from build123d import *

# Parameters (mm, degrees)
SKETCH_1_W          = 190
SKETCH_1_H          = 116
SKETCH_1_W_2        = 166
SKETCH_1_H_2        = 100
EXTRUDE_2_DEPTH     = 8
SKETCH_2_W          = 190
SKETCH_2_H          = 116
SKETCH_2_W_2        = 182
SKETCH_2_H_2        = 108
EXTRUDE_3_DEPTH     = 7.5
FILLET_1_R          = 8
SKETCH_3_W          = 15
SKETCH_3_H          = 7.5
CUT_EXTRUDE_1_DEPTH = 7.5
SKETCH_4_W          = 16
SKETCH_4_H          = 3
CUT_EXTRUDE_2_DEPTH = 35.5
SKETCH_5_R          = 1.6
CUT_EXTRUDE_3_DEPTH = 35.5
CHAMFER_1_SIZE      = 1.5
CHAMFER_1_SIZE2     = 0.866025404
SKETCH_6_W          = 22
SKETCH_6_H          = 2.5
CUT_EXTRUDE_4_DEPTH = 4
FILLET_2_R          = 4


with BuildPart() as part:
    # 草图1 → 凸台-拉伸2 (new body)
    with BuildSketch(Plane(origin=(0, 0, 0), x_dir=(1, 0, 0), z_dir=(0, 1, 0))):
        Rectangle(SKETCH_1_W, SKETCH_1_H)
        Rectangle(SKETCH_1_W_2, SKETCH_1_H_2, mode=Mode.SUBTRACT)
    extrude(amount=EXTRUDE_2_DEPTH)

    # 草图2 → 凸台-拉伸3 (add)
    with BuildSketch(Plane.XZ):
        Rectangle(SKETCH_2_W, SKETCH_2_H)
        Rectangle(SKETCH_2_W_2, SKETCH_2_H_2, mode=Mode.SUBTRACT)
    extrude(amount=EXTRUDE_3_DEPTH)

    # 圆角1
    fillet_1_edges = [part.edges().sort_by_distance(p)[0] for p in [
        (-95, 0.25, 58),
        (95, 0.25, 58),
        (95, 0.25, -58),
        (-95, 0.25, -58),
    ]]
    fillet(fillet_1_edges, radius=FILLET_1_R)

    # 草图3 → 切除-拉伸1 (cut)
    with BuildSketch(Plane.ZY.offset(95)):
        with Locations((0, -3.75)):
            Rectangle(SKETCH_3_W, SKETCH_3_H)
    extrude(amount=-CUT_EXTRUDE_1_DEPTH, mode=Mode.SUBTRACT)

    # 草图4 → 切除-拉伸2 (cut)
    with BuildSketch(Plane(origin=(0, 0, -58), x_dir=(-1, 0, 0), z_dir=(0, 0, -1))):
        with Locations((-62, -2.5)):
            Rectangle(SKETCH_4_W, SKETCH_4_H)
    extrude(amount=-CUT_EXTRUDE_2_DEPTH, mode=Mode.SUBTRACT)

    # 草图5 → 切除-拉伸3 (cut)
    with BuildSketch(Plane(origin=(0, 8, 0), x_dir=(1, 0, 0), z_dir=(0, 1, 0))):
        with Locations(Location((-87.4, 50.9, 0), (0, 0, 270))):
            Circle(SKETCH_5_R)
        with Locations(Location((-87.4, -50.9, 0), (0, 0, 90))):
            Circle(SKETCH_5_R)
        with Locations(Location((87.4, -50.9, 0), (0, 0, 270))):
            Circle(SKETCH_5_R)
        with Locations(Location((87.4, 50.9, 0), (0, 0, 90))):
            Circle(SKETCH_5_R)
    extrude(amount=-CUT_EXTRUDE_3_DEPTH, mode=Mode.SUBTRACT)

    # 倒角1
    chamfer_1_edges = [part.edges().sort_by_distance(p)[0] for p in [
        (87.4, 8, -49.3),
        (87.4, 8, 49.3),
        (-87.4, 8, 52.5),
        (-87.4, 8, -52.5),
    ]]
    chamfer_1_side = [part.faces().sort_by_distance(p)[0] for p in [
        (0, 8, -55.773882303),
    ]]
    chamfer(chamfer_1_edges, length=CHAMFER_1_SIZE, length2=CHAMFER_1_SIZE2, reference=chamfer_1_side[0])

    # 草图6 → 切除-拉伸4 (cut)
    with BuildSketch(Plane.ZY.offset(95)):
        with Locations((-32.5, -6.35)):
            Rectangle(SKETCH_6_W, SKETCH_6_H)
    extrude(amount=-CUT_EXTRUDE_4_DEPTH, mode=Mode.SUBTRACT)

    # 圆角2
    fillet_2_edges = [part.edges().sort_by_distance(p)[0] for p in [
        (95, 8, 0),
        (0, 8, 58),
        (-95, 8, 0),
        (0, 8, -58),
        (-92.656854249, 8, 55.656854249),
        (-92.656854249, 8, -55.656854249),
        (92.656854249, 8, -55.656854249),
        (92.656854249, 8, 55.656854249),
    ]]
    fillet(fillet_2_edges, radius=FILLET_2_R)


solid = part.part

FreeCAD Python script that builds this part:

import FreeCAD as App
import Part
import Sketcher

V = App.Vector
Q = App.Units.Quantity


def edges_at(feature, points):
    """Names of the edges that pass closest to the given points."""
    edges = feature.Shape.Edges
    near = lambda p: min(range(len(edges)), key=lambda i: edges[i].distToShape(Part.Vertex(*p))[0])
    return sorted({f"Edge{near(p) + 1}" for p in points})

doc = App.newDocument("Part")
params = doc.addObject("Spreadsheet::Sheet", "Params")
for row, (alias, value) in enumerate([
    ("sketch1_width", "190 mm"),
    ("sketch1_width2", "166 mm"),
    ("sketch1_height", "116 mm"),
    ("sketch1_height2", "100 mm"),
    ("pad1_length", "8 mm"),
    ("sketch2_width", "190 mm"),
    ("sketch2_width2", "182 mm"),
    ("sketch2_height", "116 mm"),
    ("sketch2_height2", "108 mm"),
    ("pad2_length", "7.5 mm"),
    ("fillet_radius", "8 mm"),
    ("sketch3_height", "15 mm"),
    ("sketch3_width", "7.5 mm"),
    ("pocket1_length", "7.5 mm"),
    ("sketch4_width", "16 mm"),
    ("sketch4_height", "3 mm"),
    ("pocket2_length", "35.5 mm"),
    ("sketch5_diameter", "3.2 mm"),
    ("pocket3_length", "35.5 mm"),
    ("chamfer_size", "1.5 mm"),
    ("chamfer_size2", "0.866025 mm"),
    ("sketch6_height", "22 mm"),
    ("sketch6_width", "2.5 mm"),
    ("pocket4_length", "4 mm"),
    ("fillet2_radius", "4 mm"),
], start=1):
    params.set(f"A{row}", alias)
    params.set(f"B{row}", "=" + value)
    params.setAlias(f"B{row}", alias)

body = doc.addObject("PartDesign::Body", "Body")

# Sketch on XZ plane
sketch1 = body.newObject("Sketcher::SketchObject", "Sketch")
sketch1.AttachmentSupport = (doc.getObject("XZ_Plane"), [""])
sketch1.MapMode = "FlatFace"
sketch1.addGeometry(Part.LineSegment(V(-95, -58, 0), V(-95, 58, 0)), False)
sketch1.addGeometry(Part.LineSegment(V(-95, 58, 0), V(95, 58, 0)), False)
sketch1.addGeometry(Part.LineSegment(V(95, 58, 0), V(95, -58, 0)), False)
sketch1.addGeometry(Part.LineSegment(V(95, -58, 0), V(-95, -58, 0)), False)
sketch1.addGeometry(Part.LineSegment(V(83, 50, 0), V(-83, 50, 0)), False)
sketch1.addGeometry(Part.LineSegment(V(-83, 50, 0), V(-83, -50, 0)), False)
sketch1.addGeometry(Part.LineSegment(V(-83, -50, 0), V(83, -50, 0)), False)
sketch1.addGeometry(Part.LineSegment(V(83, -50, 0), V(83, 50, 0)), False)
sketch1.addConstraint(Sketcher.Constraint("Coincident", 0, 2, 1, 1))
sketch1.addConstraint(Sketcher.Constraint("Coincident", 1, 2, 2, 1))
sketch1.addConstraint(Sketcher.Constraint("Coincident", 2, 2, 3, 1))
sketch1.addConstraint(Sketcher.Constraint("Coincident", 3, 2, 0, 1))
sketch1.addConstraint(Sketcher.Constraint("Coincident", 4, 2, 5, 1))
sketch1.addConstraint(Sketcher.Constraint("Coincident", 5, 2, 6, 1))
sketch1.addConstraint(Sketcher.Constraint("Coincident", 6, 2, 7, 1))
sketch1.addConstraint(Sketcher.Constraint("Coincident", 7, 2, 4, 1))
sketch1.addConstraint(Sketcher.Constraint("Vertical", 0))
sketch1.addConstraint(Sketcher.Constraint("Horizontal", 1))
sketch1.addConstraint(Sketcher.Constraint("Vertical", 2))
sketch1.addConstraint(Sketcher.Constraint("Horizontal", 3))
sketch1.addConstraint(Sketcher.Constraint("Horizontal", 4))
sketch1.addConstraint(Sketcher.Constraint("Vertical", 5))
sketch1.addConstraint(Sketcher.Constraint("Horizontal", 6))
sketch1.addConstraint(Sketcher.Constraint("Vertical", 7))
sketch1.addConstraint(Sketcher.Constraint("Symmetric", 0, 2, 2, 2, -1, 1))
sketch1.addConstraint(Sketcher.Constraint("Symmetric", 4, 2, 6, 2, -1, 1))
sketch1.addConstraint(Sketcher.Constraint("DistanceX", 1, 1, 1, 2, Q("190 mm")))
sketch1.addConstraint(Sketcher.Constraint("DistanceX", 4, 2, 4, 1, Q("166 mm")))
sketch1.addConstraint(Sketcher.Constraint("DistanceY", 0, 1, 0, 2, Q("116 mm")))
sketch1.addConstraint(Sketcher.Constraint("DistanceY", 5, 2, 5, 1, Q("100 mm")))
sketch1.setExpression("Constraints[18]", "Params.sketch1_width")
sketch1.setExpression("Constraints[19]", "Params.sketch1_width2")
sketch1.setExpression("Constraints[20]", "Params.sketch1_height")
sketch1.setExpression("Constraints[21]", "Params.sketch1_height2")
pad1 = body.newObject("PartDesign::Pad", "Pad")
pad1.Profile = sketch1
pad1.setExpression("Length", "Params.pad1_length")
pad1.Reversed = True

# Sketch on XZ plane
sketch2 = body.newObject("Sketcher::SketchObject", "Sketch001")
sketch2.AttachmentSupport = (doc.getObject("XZ_Plane"), [""])
sketch2.MapMode = "FlatFace"
sketch2.addGeometry(Part.LineSegment(V(-95, 58, 0), V(-95, -58, 0)), False)
sketch2.addGeometry(Part.LineSegment(V(-95, -58, 0), V(95, -58, 0)), False)
sketch2.addGeometry(Part.LineSegment(V(95, -58, 0), V(95, 58, 0)), False)
sketch2.addGeometry(Part.LineSegment(V(95, 58, 0), V(-95, 58, 0)), False)
sketch2.addGeometry(Part.LineSegment(V(91, -54, 0), V(-91, -54, 0)), False)
sketch2.addGeometry(Part.LineSegment(V(-91, -54, 0), V(-91, 54, 0)), False)
sketch2.addGeometry(Part.LineSegment(V(-91, 54, 0), V(91, 54, 0)), False)
sketch2.addGeometry(Part.LineSegment(V(91, 54, 0), V(91, -54, 0)), False)
sketch2.addConstraint(Sketcher.Constraint("Coincident", 0, 2, 1, 1))
sketch2.addConstraint(Sketcher.Constraint("Coincident", 1, 2, 2, 1))
sketch2.addConstraint(Sketcher.Constraint("Coincident", 2, 2, 3, 1))
sketch2.addConstraint(Sketcher.Constraint("Coincident", 3, 2, 0, 1))
sketch2.addConstraint(Sketcher.Constraint("Coincident", 4, 2, 5, 1))
sketch2.addConstraint(Sketcher.Constraint("Coincident", 5, 2, 6, 1))
sketch2.addConstraint(Sketcher.Constraint("Coincident", 6, 2, 7, 1))
sketch2.addConstraint(Sketcher.Constraint("Coincident", 7, 2, 4, 1))
sketch2.addConstraint(Sketcher.Constraint("Vertical", 0))
sketch2.addConstraint(Sketcher.Constraint("Horizontal", 1))
sketch2.addConstraint(Sketcher.Constraint("Vertical", 2))
sketch2.addConstraint(Sketcher.Constraint("Horizontal", 3))
sketch2.addConstraint(Sketcher.Constraint("Horizontal", 4))
sketch2.addConstraint(Sketcher.Constraint("Vertical", 5))
sketch2.addConstraint(Sketcher.Constraint("Horizontal", 6))
sketch2.addConstraint(Sketcher.Constraint("Vertical", 7))
sketch2.addConstraint(Sketcher.Constraint("Symmetric", 0, 2, 2, 2, -1, 1))
sketch2.addConstraint(Sketcher.Constraint("Symmetric", 4, 2, 6, 2, -1, 1))
sketch2.addConstraint(Sketcher.Constraint("DistanceX", 1, 1, 1, 2, Q("190 mm")))
sketch2.addConstraint(Sketcher.Constraint("DistanceX", 4, 2, 4, 1, Q("182 mm")))
sketch2.addConstraint(Sketcher.Constraint("DistanceY", 0, 2, 0, 1, Q("116 mm")))
sketch2.addConstraint(Sketcher.Constraint("DistanceY", 5, 1, 5, 2, Q("108 mm")))
sketch2.setExpression("Constraints[18]", "Params.sketch2_width")
sketch2.setExpression("Constraints[19]", "Params.sketch2_width2")
sketch2.setExpression("Constraints[20]", "Params.sketch2_height")
sketch2.setExpression("Constraints[21]", "Params.sketch2_height2")
pad2 = body.newObject("PartDesign::Pad", "Pad001")
pad2.Profile = sketch2
pad2.setExpression("Length", "Params.pad2_length")
doc.recompute()

fillet = body.newObject("PartDesign::Fillet", "Fillet")
fillet.Base = (pad2, edges_at(pad2, [
    (-95, 0.25, 58),
    (95, 0.25, 58),
    (95, 0.25, -58),
    (-95, 0.25, -58),
]))
fillet.setExpression("Radius", "Params.fillet_radius")

# Sketch on YZ plane
sketch3 = body.newObject("Sketcher::SketchObject", "Sketch002")
sketch3.AttachmentSupport = (doc.getObject("YZ_Plane"), [""])
sketch3.MapMode = "FlatFace"
sketch3.AttachmentOffset = App.Placement(V(0, 0, -95), App.Rotation())
sketch3.addGeometry(Part.LineSegment(V(0, -8, 0), V(-8, -8, 0)), False)
sketch3.addGeometry(Part.LineSegment(V(-8, -8, 0), V(-8, 8, 0)), False)
sketch3.addGeometry(Part.LineSegment(V(-8, 8, 0), V(0, 8, 0)), False)
sketch3.addGeometry(Part.LineSegment(V(0, 8, 0), V(0, -8, 0)), False)
sketch3.addConstraint(Sketcher.Constraint("Coincident", 0, 2, 1, 1))
sketch3.addConstraint(Sketcher.Constraint("Coincident", 1, 2, 2, 1))
sketch3.addConstraint(Sketcher.Constraint("Coincident", 2, 2, 3, 1))
sketch3.addConstraint(Sketcher.Constraint("Coincident", 3, 2, 0, 1))
sketch3.addConstraint(Sketcher.Constraint("Horizontal", 0))
sketch3.addConstraint(Sketcher.Constraint("Vertical", 1))
sketch3.addConstraint(Sketcher.Constraint("Horizontal", 2))
sketch3.addConstraint(Sketcher.Constraint("Vertical", 3))
sketch3.addConstraint(Sketcher.Constraint("Symmetric", 2, 2, 3, 2, -1, 1))
sketch3.addConstraint(Sketcher.Constraint("DistanceY", 1, 1, 1, 2, Q("15 mm")))
sketch3.addConstraint(Sketcher.Constraint("DistanceX", 0, 2, 0, 1, Q("7.5 mm")))
sketch3.setExpression("Constraints[9]", "Params.sketch3_height")
sketch3.setExpression("Constraints[10]", "Params.sketch3_width")
pocket1 = body.newObject("PartDesign::Pocket", "Pocket")
pocket1.Profile = sketch3
pocket1.setExpression("Length", "Params.pocket1_length")
pocket1.Reversed = True

# Sketch on XY plane
sketch4 = body.newObject("Sketcher::SketchObject", "Sketch003")
sketch4.AttachmentSupport = (doc.getObject("XY_Plane"), [""])
sketch4.MapMode = "FlatFace"
sketch4.AttachmentOffset = App.Placement(V(0, 0, -58), App.Rotation())
sketch4.addGeometry(Part.LineSegment(V(70, -1, 0), V(70, -4, 0)), False)
sketch4.addGeometry(Part.LineSegment(V(70, -4, 0), V(54, -4, 0)), False)
sketch4.addGeometry(Part.LineSegment(V(54, -4, 0), V(54, -1, 0)), False)
sketch4.addGeometry(Part.LineSegment(V(54, -1, 0), V(70, -1, 0)), False)
sketch4.addConstraint(Sketcher.Constraint("Coincident", 0, 2, 1, 1))
sketch4.addConstraint(Sketcher.Constraint("Coincident", 1, 2, 2, 1))
sketch4.addConstraint(Sketcher.Constraint("Coincident", 2, 2, 3, 1))
sketch4.addConstraint(Sketcher.Constraint("Coincident", 3, 2, 0, 1))
sketch4.addConstraint(Sketcher.Constraint("Vertical", 0))
sketch4.addConstraint(Sketcher.Constraint("Horizontal", 1))
sketch4.addConstraint(Sketcher.Constraint("Vertical", 2))
sketch4.addConstraint(Sketcher.Constraint("Horizontal", 3))
sketch4.addConstraint(Sketcher.Constraint("DistanceX", 1, 2, 1, 1, Q("16 mm")))
sketch4.addConstraint(Sketcher.Constraint("DistanceY", 0, 2, 0, 1, Q("3 mm")))
sketch4.addConstraint(Sketcher.Constraint("DistanceX", -1, 1, 0, 2, Q("70 mm")))
sketch4.addConstraint(Sketcher.Constraint("DistanceY", 0, 2, -1, 1, Q("4 mm")))
sketch4.setExpression("Constraints[8]", "Params.sketch4_width")
sketch4.setExpression("Constraints[9]", "Params.sketch4_height")
pocket2 = body.newObject("PartDesign::Pocket", "Pocket001")
pocket2.Profile = sketch4
pocket2.setExpression("Length", "Params.pocket2_length")
pocket2.Reversed = True

# Sketch on XZ plane
sketch5 = body.newObject("Sketcher::SketchObject", "Sketch004")
sketch5.AttachmentSupport = (doc.getObject("XZ_Plane"), [""])
sketch5.MapMode = "FlatFace"
sketch5.AttachmentOffset = App.Placement(V(0, 0, -8), App.Rotation())
sketch5.addGeometry(Part.Circle(V(-87.4, -50.9, 0), V(0, 0, 1), 1.6), False)
sketch5.addGeometry(Part.Circle(V(-87.4, 50.9, 0), V(0, 0, 1), 1.6), False)
sketch5.addGeometry(Part.Circle(V(87.4, 50.9, 0), V(0, 0, 1), 1.6), False)
sketch5.addGeometry(Part.Circle(V(87.4, -50.9, 0), V(0, 0, 1), 1.6), False)
sketch5.addConstraint(Sketcher.Constraint("Equal", 0, 1))
sketch5.addConstraint(Sketcher.Constraint("Equal", 1, 2))
sketch5.addConstraint(Sketcher.Constraint("Equal", 2, 3))
sketch5.addConstraint(Sketcher.Constraint("Symmetric", 0, 3, 2, 3, -1, 1))
sketch5.addConstraint(Sketcher.Constraint("Symmetric", 1, 3, 3, 3, -1, 1))
sketch5.addConstraint(Sketcher.Constraint("Symmetric", 1, 3, 2, 3, -2))
sketch5.addConstraint(Sketcher.Constraint("Diameter", 0, Q("3.2 mm")))
sketch5.addConstraint(Sketcher.Constraint("DistanceX", 0, 3, -1, 1, Q("87.4 mm")))
sketch5.addConstraint(Sketcher.Constraint("DistanceY", 0, 3, -1, 1, Q("50.9 mm")))
sketch5.setExpression("Constraints[6]", "Params.sketch5_diameter")
pocket3 = body.newObject("PartDesign::Pocket", "Pocket002")
pocket3.Profile = sketch5
pocket3.setExpression("Length", "Params.pocket3_length")
pocket3.Reversed = True
doc.recompute()

chamfer = body.newObject("PartDesign::Chamfer", "Chamfer")
chamfer.Base = (pocket3, edges_at(pocket3, [
    (87.4, 8, -49.3),
    (87.4, 8, 49.3),
    (-87.4, 8, 52.5),
    (-87.4, 8, -52.5),
]))
chamfer.ChamferType = "Two distances"
chamfer.setExpression("Size", "Params.chamfer_size")
chamfer.setExpression("Size2", "Params.chamfer_size2")

# Sketch on YZ plane
sketch6 = body.newObject("Sketcher::SketchObject", "Sketch005")
sketch6.AttachmentSupport = (doc.getObject("YZ_Plane"), [""])
sketch6.MapMode = "FlatFace"
sketch6.AttachmentOffset = App.Placement(V(0, 0, -95), App.Rotation())
sketch6.addGeometry(Part.LineSegment(V(-5.1, -43.5, 0), V(-7.6, -43.5, 0)), False)
sketch6.addGeometry(Part.LineSegment(V(-7.6, -43.5, 0), V(-7.6, -21.5, 0)), False)
sketch6.addGeometry(Part.LineSegment(V(-7.6, -21.5, 0), V(-5.1, -21.5, 0)), False)
sketch6.addGeometry(Part.LineSegment(V(-5.1, -21.5, 0), V(-5.1, -43.5, 0)), False)
sketch6.addConstraint(Sketcher.Constraint("Coincident", 0, 2, 1, 1))
sketch6.addConstraint(Sketcher.Constraint("Coincident", 1, 2, 2, 1))
sketch6.addConstraint(Sketcher.Constraint("Coincident", 2, 2, 3, 1))
sketch6.addConstraint(Sketcher.Constraint("Coincident", 3, 2, 0, 1))
sketch6.addConstraint(Sketcher.Constraint("Horizontal", 0))
sketch6.addConstraint(Sketcher.Constraint("Vertical", 1))
sketch6.addConstraint(Sketcher.Constraint("Horizontal", 2))
sketch6.addConstraint(Sketcher.Constraint("Vertical", 3))
sketch6.addConstraint(Sketcher.Constraint("DistanceY", 1, 1, 1, 2, Q("22 mm")))
sketch6.addConstraint(Sketcher.Constraint("DistanceX", 0, 2, 0, 1, Q("2.5 mm")))
sketch6.addConstraint(Sketcher.Constraint("DistanceX", 0, 2, -1, 1, Q("7.6 mm")))
sketch6.addConstraint(Sketcher.Constraint("DistanceY", 0, 2, -1, 1, Q("43.5 mm")))
sketch6.setExpression("Constraints[8]", "Params.sketch6_height")
sketch6.setExpression("Constraints[9]", "Params.sketch6_width")
pocket4 = body.newObject("PartDesign::Pocket", "Pocket003")
pocket4.Profile = sketch6
pocket4.setExpression("Length", "Params.pocket4_length")
pocket4.Reversed = True
doc.recompute()

fillet2 = body.newObject("PartDesign::Fillet", "Fillet001")
fillet2.Base = (pocket4, edges_at(pocket4, [
    (95, 8, 0),
    (0, 8, 58),
    (-95, 8, 0),
    (0, 8, -58),
    (-92.657, 8, 55.657),
    (-92.657, 8, -55.657),
    (92.657, 8, -55.657),
    (92.657, 8, 55.657),
]))
fillet2.setExpression("Radius", "Params.fillet2_radius")

doc.recompute()
